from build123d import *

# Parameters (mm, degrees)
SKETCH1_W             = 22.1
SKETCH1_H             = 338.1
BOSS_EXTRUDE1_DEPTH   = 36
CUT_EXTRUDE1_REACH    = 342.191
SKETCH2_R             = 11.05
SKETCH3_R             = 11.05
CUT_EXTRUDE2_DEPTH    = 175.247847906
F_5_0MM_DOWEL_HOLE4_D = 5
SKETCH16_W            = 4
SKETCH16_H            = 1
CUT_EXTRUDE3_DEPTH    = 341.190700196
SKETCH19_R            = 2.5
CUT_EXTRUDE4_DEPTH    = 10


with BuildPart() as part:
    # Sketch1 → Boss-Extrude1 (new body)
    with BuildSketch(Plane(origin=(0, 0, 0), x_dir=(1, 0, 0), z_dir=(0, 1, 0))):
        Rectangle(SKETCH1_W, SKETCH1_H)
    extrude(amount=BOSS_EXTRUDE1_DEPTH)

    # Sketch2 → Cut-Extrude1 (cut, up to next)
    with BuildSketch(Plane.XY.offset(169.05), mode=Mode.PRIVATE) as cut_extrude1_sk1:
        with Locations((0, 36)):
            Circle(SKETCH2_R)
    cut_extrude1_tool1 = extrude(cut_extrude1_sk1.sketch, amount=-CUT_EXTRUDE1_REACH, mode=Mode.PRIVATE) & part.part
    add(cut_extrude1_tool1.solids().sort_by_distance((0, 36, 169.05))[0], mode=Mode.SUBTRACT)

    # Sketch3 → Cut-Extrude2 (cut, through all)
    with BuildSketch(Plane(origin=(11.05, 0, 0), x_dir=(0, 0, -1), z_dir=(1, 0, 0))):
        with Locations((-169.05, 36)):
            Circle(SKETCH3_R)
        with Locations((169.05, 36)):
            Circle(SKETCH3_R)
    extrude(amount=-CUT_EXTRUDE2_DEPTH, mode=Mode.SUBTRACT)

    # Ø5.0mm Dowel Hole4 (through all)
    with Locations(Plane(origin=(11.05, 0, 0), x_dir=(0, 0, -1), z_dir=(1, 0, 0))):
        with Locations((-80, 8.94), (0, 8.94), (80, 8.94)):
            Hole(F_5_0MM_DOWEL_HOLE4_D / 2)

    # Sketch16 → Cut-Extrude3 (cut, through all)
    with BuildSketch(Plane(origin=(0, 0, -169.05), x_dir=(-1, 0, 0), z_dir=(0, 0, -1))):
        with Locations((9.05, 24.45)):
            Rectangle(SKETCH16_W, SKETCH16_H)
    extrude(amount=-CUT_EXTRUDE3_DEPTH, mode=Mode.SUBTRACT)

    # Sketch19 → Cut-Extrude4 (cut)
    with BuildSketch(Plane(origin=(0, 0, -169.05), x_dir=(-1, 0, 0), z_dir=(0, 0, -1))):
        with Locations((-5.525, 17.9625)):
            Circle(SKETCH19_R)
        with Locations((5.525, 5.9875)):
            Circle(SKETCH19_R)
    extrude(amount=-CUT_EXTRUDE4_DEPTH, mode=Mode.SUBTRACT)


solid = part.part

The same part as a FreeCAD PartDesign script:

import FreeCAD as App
import Part
import Sketcher

V = App.Vector
Q = App.Units.Quantity

doc = App.newDocument("Part")
body = doc.addObject("PartDesign::Body", "Body")

# Sketch on XZ plane
sketch1 = doc.addObject("Sketcher::SketchObject", "Sketch")
body.addObject(sketch1)
sketch1.AttachmentSupport = (doc.XZ_Plane, [""])
sketch1.MapMode = "FlatFace"
sketch1.addGeometry([
    Part.LineSegment(V(-11, -169, 0), V(-11, 169, 0)),
    Part.LineSegment(V(-11, 169, 0), V(11, 169, 0)),
    Part.LineSegment(V(11, 169, 0), V(11, -169, 0)),
    Part.LineSegment(V(11, -169, 0), V(-11, -169, 0)),
], False)
sketch1.addConstraint([
    Sketcher.Constraint("Coincident", 0, 2, 1, 1),
    Sketcher.Constraint("Coincident", 1, 2, 2, 1),
    Sketcher.Constraint("Coincident", 2, 2, 3, 1),
    Sketcher.Constraint("Coincident", 3, 2, 0, 1),
    Sketcher.Constraint("Vertical", 0),
    Sketcher.Constraint("Horizontal", 1),
    Sketcher.Constraint("Vertical", 2),
    Sketcher.Constraint("Horizontal", 3),
    Sketcher.Constraint("Symmetric", 0, 2, 2, 2, -1, 1),
    Sketcher.Constraint("DistanceX", 1, 1, 1, 2, Q("22.1 mm")),
    Sketcher.Constraint("DistanceY", 0, 1, 0, 2, Q("338.1 mm")),
])
pad1 = doc.addObject("PartDesign::Pad", "Pad")
body.addObject(pad1)
pad1.Profile = sketch1
pad1.Length = 36
pad1.Reversed = True

# Sketch on XY plane
sketch2 = doc.addObject("Sketcher::SketchObject", "Sketch001")
body.addObject(sketch2)
sketch2.AttachmentSupport = (doc.XY_Plane, [""])
sketch2.MapMode = "FlatFace"
sketch2.AttachmentOffset = App.Placement(V(0, 0, 169.05), App.Rotation())
sketch2.addGeometry(Part.Circle(V(0, 36, 0), V(0, 0, 1), 11), False)
sketch2.addConstraint([
    Sketcher.Constraint("PointOnObject", 0, 3, -2),
    Sketcher.Constraint("Diameter", 0, Q("22.1 mm")),
    Sketcher.Constraint("DistanceY", -1, 1, 0, 3, Q("36 mm")),
])
pocket1 = doc.addObject("PartDesign::Pocket", "Pocket")
body.addObject(pocket1)
pocket1.Profile = sketch2
pocket1.Type = "UpToFirst"

# Sketch on YZ plane
sketch3 = doc.addObject("Sketcher::SketchObject", "Sketch002")
body.addObject(sketch3)
sketch3.AttachmentSupport = (doc.YZ_Plane, [""])
sketch3.MapMode = "FlatFace"
sketch3.AttachmentOffset = App.Placement(V(0, 0, 11.05), App.Rotation())
sketch3.addGeometry([
    Part.Circle(V(36, 169, 0), V(0, 0, 1), 11),
    Part.Circle(V(36, -169, 0), V(0, 0, 1), 11),
], False)
sketch3.addConstraint([
    Sketcher.Constraint("Equal", 0, 1),
    Sketcher.Constraint("Symmetric", 0, 3, 1, 3, -1),
    Sketcher.Constraint("Diameter", 0, Q("22.1 mm")),
    Sketcher.Constraint("DistanceX", -1, 1, 0, 3, Q("36 mm")),
    Sketcher.Constraint("DistanceY", 1, 3, 0, 3, Q("338.1 mm")),
])
pocket2 = doc.addObject("PartDesign::Pocket", "Pocket001")
body.addObject(pocket2)
pocket2.Profile = sketch3
pocket2.Type = "ThroughAll"

# Sketch on YZ plane
sketch4 = doc.addObject("Sketcher::SketchObject", "Sketch003")
body.addObject(sketch4)
sketch4.AttachmentSupport = (doc.YZ_Plane, [""])
sketch4.MapMode = "FlatFace"
sketch4.AttachmentOffset = App.Placement(V(0, 0, 11.05), App.Rotation())
sketch4.addGeometry([
    Part.Circle(V(8.9, 80, 0), V(0, 0, 1), 2.5),
    Part.Circle(V(8.9, 0, 0), V(0, 0, 1), 2.5),
    Part.Circle(V(8.9, -80, 0), V(0, 0, 1), 2.5),
], False)
sketch4.addConstraint([
    Sketcher.Constraint("Equal", 0, 1),
    Sketcher.Constraint("Equal", 1, 2),
    Sketcher.Constraint("Symmetric", 0, 3, 2, 3, -1),
    Sketcher.Constraint("PointOnObject", 1, 3, -1),
    Sketcher.Constraint("Vertical", 0, 3, 1, 3),
    Sketcher.Constraint("Diameter", 0, Q("5 mm")),
    Sketcher.Constraint("DistanceY", -1, 1, 0, 3, Q("80 mm")),
    Sketcher.Constraint("DistanceX", -1, 1, 0, 3, Q("8.94 mm")),
])
doc.recompute()
hole = doc.addObject("PartDesign::Hole", "Hole")
body.addObject(hole)
hole.Profile = sketch4
hole.ThreadType = "None"
hole.Diameter = 5
hole.DepthType = "ThroughAll"

# Sketch on XY plane
sketch5 = doc.addObject("Sketcher::SketchObject", "Sketch004")
body.addObject(sketch5)
sketch5.AttachmentSupport = (doc.XY_Plane, [""])
sketch5.MapMode = "FlatFace"
sketch5.AttachmentOffset = App.Placement(V(0, 0, -169.05), App.Rotation())
sketch5.addGeometry([
    Part.LineSegment(V(-7, 24.9, 0), V(-7, 23.9, 0)),
    Part.LineSegment(V(-7, 23.9, 0), V(-11.1, 23.9, 0)),
    Part.LineSegment(V(-11.1, 23.9, 0), V(-11.1, 24.9, 0)),
    Part.LineSegment(V(-11.1, 24.9, 0), V(-7, 24.9, 0)),
], False)
sketch5.addConstraint([
    Sketcher.Constraint("Coincident", 0, 2, 1, 1),
    Sketcher.Constraint("Coincident", 1, 2, 2, 1),
    Sketcher.Constraint("Coincident", 2, 2, 3, 1),
    Sketcher.Constraint("Coincident", 3, 2, 0, 1),
    Sketcher.Constraint("Vertical", 0),
    Sketcher.Constraint("Horizontal", 1),
    Sketcher.Constraint("Vertical", 2),
    Sketcher.Constraint("Horizontal", 3),
    Sketcher.Constraint("DistanceX", 1, 2, 1, 1, Q("4 mm")),
    Sketcher.Constraint("DistanceY", 0, 2, 0, 1, Q("1 mm")),
    Sketcher.Constraint("DistanceX", 0, 2, -1, 1, Q("7.05 mm")),
    Sketcher.Constraint("DistanceY", -1, 1, 0, 2, Q("23.95 mm")),
])
pocket3 = doc.addObject("PartDesign::Pocket", "Pocket002")
body.addObject(pocket3)
pocket3.Profile = sketch5
pocket3.Type = "ThroughAll"
pocket3.Reversed = True

# Sketch on XY plane
sketch6 = doc.addObject("Sketcher::SketchObject", "Sketch005")
body.addObject(sketch6)
sketch6.AttachmentSupport = (doc.XY_Plane, [""])
sketch6.MapMode = "FlatFace"
sketch6.AttachmentOffset = App.Placement(V(0, 0, -169.05), App.Rotation())
sketch6.addGeometry([
    Part.Circle(V(5.5, 18, 0), V(0, 0, 1), 2.5),
    Part.Circle(V(-5.5, 6, 0), V(0, 0, 1), 2.5),
], False)
sketch6.addConstraint([
    Sketcher.Constraint("Equal", 0, 1),
    Sketcher.Constraint("Diameter", 0, Q("5 mm")),
    Sketcher.Constraint("DistanceX", 1, 3, 0, 3, Q("11.05 mm")),
    Sketcher.Constraint("DistanceX", -1, 1, 0, 3, Q("5.525 mm")),
    Sketcher.Constraint("DistanceY", 1, 3, 0, 3, Q("11.975 mm")),
    Sketcher.Constraint("DistanceY", -1, 1, 0, 3, Q("17.9625 mm")),
])
pocket4 = doc.addObject("PartDesign::Pocket", "Pocket003")
body.addObject(pocket4)
pocket4.Profile = sketch6
pocket4.Length = 10
pocket4.Reversed = True

doc.recompute()
